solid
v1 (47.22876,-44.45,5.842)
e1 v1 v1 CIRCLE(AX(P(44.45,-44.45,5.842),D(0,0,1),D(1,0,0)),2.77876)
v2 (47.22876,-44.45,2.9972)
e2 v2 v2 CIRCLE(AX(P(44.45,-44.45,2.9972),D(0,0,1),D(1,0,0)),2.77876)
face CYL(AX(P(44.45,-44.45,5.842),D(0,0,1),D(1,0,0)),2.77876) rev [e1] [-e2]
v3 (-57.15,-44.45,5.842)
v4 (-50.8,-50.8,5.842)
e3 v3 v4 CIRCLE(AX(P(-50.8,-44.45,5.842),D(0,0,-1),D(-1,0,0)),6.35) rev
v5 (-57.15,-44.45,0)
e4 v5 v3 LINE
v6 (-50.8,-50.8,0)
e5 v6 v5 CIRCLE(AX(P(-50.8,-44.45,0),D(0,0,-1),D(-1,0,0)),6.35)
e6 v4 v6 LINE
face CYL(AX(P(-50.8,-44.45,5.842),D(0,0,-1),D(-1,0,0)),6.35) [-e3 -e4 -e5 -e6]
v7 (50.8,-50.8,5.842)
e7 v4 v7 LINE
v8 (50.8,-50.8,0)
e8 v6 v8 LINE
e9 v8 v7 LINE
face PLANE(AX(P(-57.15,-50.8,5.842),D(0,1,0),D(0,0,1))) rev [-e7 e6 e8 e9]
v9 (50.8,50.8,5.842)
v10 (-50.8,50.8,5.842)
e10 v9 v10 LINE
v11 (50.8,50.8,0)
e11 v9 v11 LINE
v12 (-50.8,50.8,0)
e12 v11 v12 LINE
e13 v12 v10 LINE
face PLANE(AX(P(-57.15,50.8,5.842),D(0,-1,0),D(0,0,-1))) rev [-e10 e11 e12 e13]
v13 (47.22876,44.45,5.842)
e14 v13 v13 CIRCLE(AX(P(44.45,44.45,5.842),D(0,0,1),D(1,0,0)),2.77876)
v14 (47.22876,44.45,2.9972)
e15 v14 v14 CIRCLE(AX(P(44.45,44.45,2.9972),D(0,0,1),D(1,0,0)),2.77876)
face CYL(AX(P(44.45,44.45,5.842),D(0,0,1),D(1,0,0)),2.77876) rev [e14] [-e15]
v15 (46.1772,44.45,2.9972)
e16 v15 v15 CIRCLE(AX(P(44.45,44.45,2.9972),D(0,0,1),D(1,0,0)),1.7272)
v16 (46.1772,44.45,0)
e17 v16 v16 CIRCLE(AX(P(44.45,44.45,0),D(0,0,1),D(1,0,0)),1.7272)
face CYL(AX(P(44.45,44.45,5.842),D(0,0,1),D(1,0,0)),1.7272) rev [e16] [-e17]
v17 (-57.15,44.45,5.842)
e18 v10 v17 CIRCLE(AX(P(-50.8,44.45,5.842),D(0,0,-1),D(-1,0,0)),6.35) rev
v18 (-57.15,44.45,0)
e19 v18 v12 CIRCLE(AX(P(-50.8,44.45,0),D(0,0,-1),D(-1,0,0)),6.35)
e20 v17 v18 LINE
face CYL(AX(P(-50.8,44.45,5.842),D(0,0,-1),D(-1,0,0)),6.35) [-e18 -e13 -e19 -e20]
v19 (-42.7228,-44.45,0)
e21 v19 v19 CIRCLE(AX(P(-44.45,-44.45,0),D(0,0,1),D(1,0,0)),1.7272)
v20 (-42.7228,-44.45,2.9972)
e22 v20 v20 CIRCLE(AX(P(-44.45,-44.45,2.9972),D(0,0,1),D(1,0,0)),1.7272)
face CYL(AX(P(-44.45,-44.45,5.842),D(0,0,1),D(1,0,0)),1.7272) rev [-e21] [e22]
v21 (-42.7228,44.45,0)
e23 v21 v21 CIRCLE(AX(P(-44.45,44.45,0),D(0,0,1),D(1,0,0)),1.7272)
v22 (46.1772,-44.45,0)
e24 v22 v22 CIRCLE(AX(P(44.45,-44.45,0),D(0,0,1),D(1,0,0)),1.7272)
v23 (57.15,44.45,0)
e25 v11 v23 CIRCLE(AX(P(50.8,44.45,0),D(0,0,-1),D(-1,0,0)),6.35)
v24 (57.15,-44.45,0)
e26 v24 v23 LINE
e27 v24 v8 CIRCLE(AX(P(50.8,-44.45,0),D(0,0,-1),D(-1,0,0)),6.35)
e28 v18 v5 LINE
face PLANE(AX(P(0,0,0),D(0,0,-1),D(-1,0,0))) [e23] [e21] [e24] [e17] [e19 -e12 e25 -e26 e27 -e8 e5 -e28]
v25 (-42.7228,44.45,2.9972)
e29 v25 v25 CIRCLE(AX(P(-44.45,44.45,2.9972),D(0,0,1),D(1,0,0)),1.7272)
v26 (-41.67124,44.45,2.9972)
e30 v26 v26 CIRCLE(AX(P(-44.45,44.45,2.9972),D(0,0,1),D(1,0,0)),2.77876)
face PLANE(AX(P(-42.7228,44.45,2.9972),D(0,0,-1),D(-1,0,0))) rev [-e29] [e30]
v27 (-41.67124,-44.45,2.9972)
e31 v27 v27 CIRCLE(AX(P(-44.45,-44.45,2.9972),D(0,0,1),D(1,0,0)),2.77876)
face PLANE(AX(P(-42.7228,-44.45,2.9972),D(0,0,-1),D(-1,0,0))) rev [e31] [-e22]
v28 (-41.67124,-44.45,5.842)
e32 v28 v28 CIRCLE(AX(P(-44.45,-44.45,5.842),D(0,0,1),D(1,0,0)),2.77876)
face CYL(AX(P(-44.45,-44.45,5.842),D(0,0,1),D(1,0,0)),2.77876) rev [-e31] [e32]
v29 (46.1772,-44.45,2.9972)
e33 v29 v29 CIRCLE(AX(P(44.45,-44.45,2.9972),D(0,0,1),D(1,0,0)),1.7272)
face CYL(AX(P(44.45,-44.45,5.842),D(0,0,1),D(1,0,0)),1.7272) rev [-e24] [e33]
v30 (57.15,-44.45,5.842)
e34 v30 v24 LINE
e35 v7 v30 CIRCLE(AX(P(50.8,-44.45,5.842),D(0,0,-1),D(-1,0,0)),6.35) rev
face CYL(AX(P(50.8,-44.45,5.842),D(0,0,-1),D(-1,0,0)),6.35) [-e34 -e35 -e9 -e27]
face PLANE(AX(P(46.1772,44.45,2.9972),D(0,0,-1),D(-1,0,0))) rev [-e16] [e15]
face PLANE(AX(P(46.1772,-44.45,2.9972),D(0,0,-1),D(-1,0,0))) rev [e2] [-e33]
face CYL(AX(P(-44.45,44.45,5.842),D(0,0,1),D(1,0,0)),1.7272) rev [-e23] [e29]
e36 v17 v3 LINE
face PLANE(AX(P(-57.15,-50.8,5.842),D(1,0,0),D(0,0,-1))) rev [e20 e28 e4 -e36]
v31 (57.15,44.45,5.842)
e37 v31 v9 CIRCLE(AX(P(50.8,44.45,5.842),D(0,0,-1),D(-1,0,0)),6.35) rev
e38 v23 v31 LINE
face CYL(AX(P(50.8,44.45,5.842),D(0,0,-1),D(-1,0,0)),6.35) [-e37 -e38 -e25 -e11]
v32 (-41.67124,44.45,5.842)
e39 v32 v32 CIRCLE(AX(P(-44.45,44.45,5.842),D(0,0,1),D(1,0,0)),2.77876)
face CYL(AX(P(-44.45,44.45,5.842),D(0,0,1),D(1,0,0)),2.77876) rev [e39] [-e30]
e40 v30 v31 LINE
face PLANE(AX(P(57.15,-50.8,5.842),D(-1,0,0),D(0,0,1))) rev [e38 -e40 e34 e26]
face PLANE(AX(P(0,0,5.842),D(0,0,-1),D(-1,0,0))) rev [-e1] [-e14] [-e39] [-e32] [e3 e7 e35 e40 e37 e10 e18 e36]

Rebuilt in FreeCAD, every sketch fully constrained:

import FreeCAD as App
import Part
import Sketcher
from FreeCAD import Vector
Q = App.Units.Quantity


def edges_at(feature, points):
    """Names of the edges that pass closest to the given points."""
    edges = feature.Shape.Edges
    near = lambda p: min(range(len(edges)), key=lambda i: edges[i].distToShape(Part.Vertex(*p))[0])
    return sorted({f"Edge{near(p) + 1}" for p in points})


def add_polygon(sketch, points):
    """Adds a closed chain of lines whose ends are joined by coincident constraints."""
    first, n = sketch.GeometryCount, len(points)
    for a, b in zip(points, points[1:] + points[:1]):
        sketch.addGeometry(Part.LineSegment(App.Vector(*a, 0), App.Vector(*b, 0)), False)
    for i in range(n):
        sketch.addConstraint(Sketcher.Constraint("Coincident", first + i, 2, first + (i + 1) % n, 1))

doc = App.newDocument("Part")
params = doc.addObject("Spreadsheet::Sheet", "Params")
for row, (alias, value) in enumerate([
    ("sketch1_height", "4 in"),
    ("sketch1_width", "4.5 in"),
    ("pad1_length", "0.23 in"),
    ("sketch2_diameter", "0.136 in"),
    ("hole_diameter", "0.136 in"),
    ("hole_cbore_diameter", "0.2188 in"),
    ("hole_cbore_depth", "0.112 in"),
    ("fillet_radius", "0.25 in"),
], start=1):
    params.set(f"A{row}", alias)
    params.set(f"B{row}", "=" + value)
    params.setAlias(f"B{row}", alias)

body = doc.addObject("PartDesign::Body", "Body")

# Sketch on XY plane
sketch1 = body.newObject("Sketcher::SketchObject", "Sketch")
sketch1.AttachmentSupport = (doc.getObject("XY_Plane"), [""])
sketch1.MapMode = "FlatFace"
add_polygon(sketch1, [(-57, 51), (-57, -51), (57, -51), (57, 51)])  # lines 0-3
sketch1.addConstraint([
    Sketcher.Constraint("Vertical", 0),
    Sketcher.Constraint("Horizontal", 1),
    Sketcher.Constraint("Vertical", 2),
    Sketcher.Constraint("Horizontal", 3),
    Sketcher.Constraint("Symmetric", 0, 2, 2, 2, -1, 1),
    Sketcher.Constraint("DistanceY", 0, 2, 0, 1, Q("4 in")),
    Sketcher.Constraint("DistanceX", 1, 1, 1, 2, Q("4.5 in")),
])
sketch1.setExpression("Constraints[9]", "Params.sketch1_height")
sketch1.setExpression("Constraints[10]", "Params.sketch1_width")
pad1 = body.newObject("PartDesign::Pad", "Pad")
pad1.Profile = sketch1
pad1.setExpression("Length", "Params.pad1_length")

# Sketch on XY plane
sketch2 = body.newObject("Sketcher::SketchObject", "Sketch001")
sketch2.AttachmentSupport = (doc.getObject("XY_Plane"), [""])
sketch2.MapMode = "FlatFace"
sketch2.AttachmentOffset = App.Placement(Vector(0, 0, 0.23 * 25.4), App.Rotation())
sketch2.addGeometry([
    Part.Circle(Vector(-44.5, 44.5, 0), Vector(0, 0, 1), 1.7),
    Part.Circle(Vector(-44.5, -44.5, 0), Vector(0, 0, 1), 1.7),
    Part.Circle(Vector(44.5, -44.5, 0), Vector(0, 0, 1), 1.7),
    Part.Circle(Vector(44.5, 44.5, 0), Vector(0, 0, 1), 1.7),
], False)
sketch2.addConstraint([
    Sketcher.Constraint("Equal", 0, 1),
    Sketcher.Constraint("Equal", 1, 2),
    Sketcher.Constraint("Equal", 2, 3),
    Sketcher.Constraint("Symmetric", 0, 3, 2, 3, -1, 1),
    Sketcher.Constraint("Symmetric", 1, 3, 3, 3, -1, 1),
    Sketcher.Constraint("Symmetric", 1, 3, 2, 3, -2),
    Sketcher.Constraint("Diameter", 0, Q("0.136 in")),
    Sketcher.Constraint("DistanceY", 1, 3, 0, 3, Q("3.5 in")),
    Sketcher.Constraint("DistanceX", 1, 3, 2, 3, Q("3.5 in")),
])
sketch2.setExpression("Constraints[6]", "Params.sketch2_diameter")
doc.recompute()
hole = body.newObject("PartDesign::Hole", "Hole")
hole.Profile = sketch2
hole.ThreadType = "None"
hole.setExpression("Diameter", "Params.hole_diameter")
hole.DepthType = "ThroughAll"
hole.HoleCutType = "Counterbore"
hole.setExpression("HoleCutDiameter", "Params.hole_cbore_diameter")
hole.setExpression("HoleCutDepth", "Params.hole_cbore_depth")
doc.recompute()

fillet = body.newObject("PartDesign::Fillet", "Fillet")
fillet.Base = (hole, edges_at(hole, [
    (57.15, -50.8, 2.921),
    (-57.15, -50.8, 2.921),
    (-57.15, 50.8, 2.921),
    (57.15, 50.8, 2.921),
]))
fillet.setExpression("Radius", "Params.fillet_radius")

doc.recompute()
